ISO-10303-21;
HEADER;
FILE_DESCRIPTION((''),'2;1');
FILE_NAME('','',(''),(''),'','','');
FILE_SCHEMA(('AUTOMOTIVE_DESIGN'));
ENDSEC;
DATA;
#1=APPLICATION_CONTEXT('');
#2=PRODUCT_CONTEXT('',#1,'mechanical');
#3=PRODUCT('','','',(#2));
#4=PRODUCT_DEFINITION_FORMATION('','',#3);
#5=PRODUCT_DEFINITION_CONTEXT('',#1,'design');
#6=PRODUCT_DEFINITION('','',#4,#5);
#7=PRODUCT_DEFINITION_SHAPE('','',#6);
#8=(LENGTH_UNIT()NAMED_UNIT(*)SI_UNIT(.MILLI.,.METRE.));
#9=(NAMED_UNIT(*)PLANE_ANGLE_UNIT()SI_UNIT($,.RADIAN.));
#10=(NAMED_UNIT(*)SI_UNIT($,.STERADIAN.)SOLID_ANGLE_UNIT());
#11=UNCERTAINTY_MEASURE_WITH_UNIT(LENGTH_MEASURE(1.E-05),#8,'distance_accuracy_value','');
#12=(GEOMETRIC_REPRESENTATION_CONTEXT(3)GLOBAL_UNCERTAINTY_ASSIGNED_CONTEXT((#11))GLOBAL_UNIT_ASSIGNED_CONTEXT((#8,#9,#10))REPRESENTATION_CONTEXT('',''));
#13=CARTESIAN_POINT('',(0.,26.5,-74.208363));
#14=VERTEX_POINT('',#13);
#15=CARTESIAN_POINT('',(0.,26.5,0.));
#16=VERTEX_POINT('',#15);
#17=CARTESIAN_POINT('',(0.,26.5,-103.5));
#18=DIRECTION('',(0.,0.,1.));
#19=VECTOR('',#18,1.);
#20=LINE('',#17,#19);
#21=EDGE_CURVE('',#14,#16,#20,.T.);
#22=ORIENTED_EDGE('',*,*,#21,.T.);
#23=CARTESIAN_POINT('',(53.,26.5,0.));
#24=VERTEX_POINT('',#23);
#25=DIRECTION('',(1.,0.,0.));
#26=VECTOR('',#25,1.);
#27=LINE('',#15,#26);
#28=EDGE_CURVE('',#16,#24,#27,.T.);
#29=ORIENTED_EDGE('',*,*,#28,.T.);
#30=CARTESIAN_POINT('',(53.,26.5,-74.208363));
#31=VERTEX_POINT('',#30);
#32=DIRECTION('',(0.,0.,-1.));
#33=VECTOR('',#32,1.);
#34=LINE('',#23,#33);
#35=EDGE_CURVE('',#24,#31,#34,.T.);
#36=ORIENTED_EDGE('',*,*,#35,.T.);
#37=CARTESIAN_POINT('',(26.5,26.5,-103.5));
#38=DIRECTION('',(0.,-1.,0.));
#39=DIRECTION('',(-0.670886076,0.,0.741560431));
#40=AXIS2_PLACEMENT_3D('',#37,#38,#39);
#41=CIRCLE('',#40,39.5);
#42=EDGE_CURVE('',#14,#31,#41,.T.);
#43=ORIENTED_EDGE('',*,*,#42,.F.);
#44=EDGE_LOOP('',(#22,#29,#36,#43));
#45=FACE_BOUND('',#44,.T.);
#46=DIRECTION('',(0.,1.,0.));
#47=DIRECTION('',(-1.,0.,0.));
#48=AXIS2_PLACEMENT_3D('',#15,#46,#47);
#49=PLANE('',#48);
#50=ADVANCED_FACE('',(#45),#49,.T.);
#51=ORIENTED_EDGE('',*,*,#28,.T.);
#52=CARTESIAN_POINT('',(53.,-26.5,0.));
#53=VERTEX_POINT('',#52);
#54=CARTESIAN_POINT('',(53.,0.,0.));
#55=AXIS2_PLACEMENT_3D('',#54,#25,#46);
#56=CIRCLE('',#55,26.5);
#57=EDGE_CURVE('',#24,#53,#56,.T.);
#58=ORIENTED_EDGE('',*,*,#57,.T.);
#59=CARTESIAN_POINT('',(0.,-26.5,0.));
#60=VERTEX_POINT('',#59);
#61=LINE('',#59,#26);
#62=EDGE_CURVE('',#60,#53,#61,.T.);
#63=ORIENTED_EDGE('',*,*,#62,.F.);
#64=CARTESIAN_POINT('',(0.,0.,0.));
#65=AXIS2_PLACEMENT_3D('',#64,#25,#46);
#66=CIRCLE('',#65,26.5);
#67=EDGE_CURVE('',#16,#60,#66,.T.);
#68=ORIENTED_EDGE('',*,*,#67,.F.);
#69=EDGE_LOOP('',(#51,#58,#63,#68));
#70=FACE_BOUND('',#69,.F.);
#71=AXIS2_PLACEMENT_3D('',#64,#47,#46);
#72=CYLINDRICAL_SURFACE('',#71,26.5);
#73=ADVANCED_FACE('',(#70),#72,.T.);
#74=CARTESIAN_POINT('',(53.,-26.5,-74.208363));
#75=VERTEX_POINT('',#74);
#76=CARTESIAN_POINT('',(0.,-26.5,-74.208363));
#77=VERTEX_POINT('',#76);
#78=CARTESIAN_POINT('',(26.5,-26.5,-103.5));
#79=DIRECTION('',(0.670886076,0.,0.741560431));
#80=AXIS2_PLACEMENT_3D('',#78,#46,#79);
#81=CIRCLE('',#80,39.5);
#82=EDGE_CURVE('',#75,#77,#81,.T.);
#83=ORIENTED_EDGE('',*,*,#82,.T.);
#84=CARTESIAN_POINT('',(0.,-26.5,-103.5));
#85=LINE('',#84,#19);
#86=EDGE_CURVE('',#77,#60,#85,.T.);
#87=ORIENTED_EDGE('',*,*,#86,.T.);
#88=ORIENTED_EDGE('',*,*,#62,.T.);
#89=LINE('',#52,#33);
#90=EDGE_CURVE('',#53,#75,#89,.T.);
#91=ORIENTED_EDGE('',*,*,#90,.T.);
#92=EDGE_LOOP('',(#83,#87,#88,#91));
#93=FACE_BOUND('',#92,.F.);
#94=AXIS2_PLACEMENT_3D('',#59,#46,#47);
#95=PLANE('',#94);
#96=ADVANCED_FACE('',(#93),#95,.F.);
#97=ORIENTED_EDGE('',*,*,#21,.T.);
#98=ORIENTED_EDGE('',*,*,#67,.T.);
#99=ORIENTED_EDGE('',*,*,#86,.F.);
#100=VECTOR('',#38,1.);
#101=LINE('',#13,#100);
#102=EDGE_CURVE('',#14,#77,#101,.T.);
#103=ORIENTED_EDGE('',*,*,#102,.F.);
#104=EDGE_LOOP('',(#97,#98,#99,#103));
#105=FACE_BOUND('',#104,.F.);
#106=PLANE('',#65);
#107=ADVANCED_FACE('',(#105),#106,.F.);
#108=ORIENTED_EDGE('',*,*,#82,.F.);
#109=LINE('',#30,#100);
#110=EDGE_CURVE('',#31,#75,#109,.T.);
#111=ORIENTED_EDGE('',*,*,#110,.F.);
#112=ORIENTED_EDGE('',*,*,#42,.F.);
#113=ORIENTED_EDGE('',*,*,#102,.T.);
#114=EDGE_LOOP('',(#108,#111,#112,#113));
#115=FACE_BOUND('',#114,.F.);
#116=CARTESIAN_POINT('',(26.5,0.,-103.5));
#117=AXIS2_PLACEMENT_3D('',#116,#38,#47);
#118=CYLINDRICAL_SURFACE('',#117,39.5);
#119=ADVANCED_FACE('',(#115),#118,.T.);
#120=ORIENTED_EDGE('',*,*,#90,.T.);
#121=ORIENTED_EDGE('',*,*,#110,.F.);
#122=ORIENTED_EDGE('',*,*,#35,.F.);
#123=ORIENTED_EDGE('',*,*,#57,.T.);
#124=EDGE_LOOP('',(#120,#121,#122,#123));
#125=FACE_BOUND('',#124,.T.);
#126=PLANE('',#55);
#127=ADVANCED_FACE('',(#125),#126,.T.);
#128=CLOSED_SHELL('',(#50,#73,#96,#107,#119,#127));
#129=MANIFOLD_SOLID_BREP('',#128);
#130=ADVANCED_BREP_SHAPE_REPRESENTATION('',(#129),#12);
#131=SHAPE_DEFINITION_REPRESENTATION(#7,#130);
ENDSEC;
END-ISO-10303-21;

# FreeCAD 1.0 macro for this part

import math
import FreeCAD as App
import Part
import Sketcher

doc = App.newDocument("Part")
body = doc.addObject("PartDesign::Body", "Body")

sketch1 = body.newObject("Sketcher::SketchObject", "Sketch")
sketch1.AttachmentSupport = (doc.getObject("XZ_Plane"), [""])
sketch1.MapMode = "FlatFace"
sketch1.addGeometry([
    Part.LineSegment(App.Vector(0, -74, 0), App.Vector(0, 0, 0)),
    Part.LineSegment(App.Vector(0, 0, 0), App.Vector(53, 0, 0)),
    Part.LineSegment(App.Vector(53, 0, 0), App.Vector(53, -74, 0)),
    Part.ArcOfCircle(Part.Circle(App.Vector(26, -104, 0), App.Vector(0, 0, 1), 40), math.radians(132), math.radians(408)),
], False)
sketch1.addConstraint([
    Sketcher.Constraint("Coincident", 0, 2, 1, 1),
    Sketcher.Constraint("Coincident", 1, 2, 2, 1),
    Sketcher.Constraint("Coincident", 2, 2, 3, 2),
    Sketcher.Constraint("Coincident", 3, 1, 0, 1),
    Sketcher.Constraint("Vertical", 0),
    Sketcher.Constraint("Horizontal", 1),
    Sketcher.Constraint("Vertical", 2),
    Sketcher.Constraint("Coincident", 0, 2, -1, 1),
    Sketcher.Constraint("Horizontal", 2, 2, 3, 1),
    Sketcher.Constraint("Radius", 3, 39.5),
    Sketcher.Constraint("DistanceX", 1, 1, 1, 2, 53.0),
    Sketcher.Constraint("DistanceY", 3, 3, -1, 1, 103.5),
])
pad1 = body.newObject("PartDesign::Pad", "Pad")
pad1.Profile = sketch1
pad1.Length = 53
pad1.Midplane = True

sketch2 = body.newObject("Sketcher::SketchObject", "Sketch001")
sketch2.AttachmentSupport = (doc.getObject("YZ_Plane"), [""])
sketch2.MapMode = "FlatFace"
sketch2.addGeometry([
    Part.ArcOfCircle(Part.Circle(App.Vector(0, 0, 0), App.Vector(0, 0, 1), 26), math.radians(0), math.radians(180)),
    Part.LineSegment(App.Vector(-26, 0, 0), App.Vector(26, 0, 0)),
], False)
sketch2.addConstraint([
    Sketcher.Constraint("Coincident", 0, 1, 1, 2),
    Sketcher.Constraint("Coincident", 1, 1, 0, 2),
    Sketcher.Constraint("Horizontal", 1),
    Sketcher.Constraint("Coincident", 0, 3, -1, 1),
    Sketcher.Constraint("PointOnObject", 0, 1, -1),
    Sketcher.Constraint("Radius", 0, 26.5),
])
pad2 = body.newObject("PartDesign::Pad", "Pad001")
pad2.Profile = sketch2
pad2.Length = 53

doc.recompute()
